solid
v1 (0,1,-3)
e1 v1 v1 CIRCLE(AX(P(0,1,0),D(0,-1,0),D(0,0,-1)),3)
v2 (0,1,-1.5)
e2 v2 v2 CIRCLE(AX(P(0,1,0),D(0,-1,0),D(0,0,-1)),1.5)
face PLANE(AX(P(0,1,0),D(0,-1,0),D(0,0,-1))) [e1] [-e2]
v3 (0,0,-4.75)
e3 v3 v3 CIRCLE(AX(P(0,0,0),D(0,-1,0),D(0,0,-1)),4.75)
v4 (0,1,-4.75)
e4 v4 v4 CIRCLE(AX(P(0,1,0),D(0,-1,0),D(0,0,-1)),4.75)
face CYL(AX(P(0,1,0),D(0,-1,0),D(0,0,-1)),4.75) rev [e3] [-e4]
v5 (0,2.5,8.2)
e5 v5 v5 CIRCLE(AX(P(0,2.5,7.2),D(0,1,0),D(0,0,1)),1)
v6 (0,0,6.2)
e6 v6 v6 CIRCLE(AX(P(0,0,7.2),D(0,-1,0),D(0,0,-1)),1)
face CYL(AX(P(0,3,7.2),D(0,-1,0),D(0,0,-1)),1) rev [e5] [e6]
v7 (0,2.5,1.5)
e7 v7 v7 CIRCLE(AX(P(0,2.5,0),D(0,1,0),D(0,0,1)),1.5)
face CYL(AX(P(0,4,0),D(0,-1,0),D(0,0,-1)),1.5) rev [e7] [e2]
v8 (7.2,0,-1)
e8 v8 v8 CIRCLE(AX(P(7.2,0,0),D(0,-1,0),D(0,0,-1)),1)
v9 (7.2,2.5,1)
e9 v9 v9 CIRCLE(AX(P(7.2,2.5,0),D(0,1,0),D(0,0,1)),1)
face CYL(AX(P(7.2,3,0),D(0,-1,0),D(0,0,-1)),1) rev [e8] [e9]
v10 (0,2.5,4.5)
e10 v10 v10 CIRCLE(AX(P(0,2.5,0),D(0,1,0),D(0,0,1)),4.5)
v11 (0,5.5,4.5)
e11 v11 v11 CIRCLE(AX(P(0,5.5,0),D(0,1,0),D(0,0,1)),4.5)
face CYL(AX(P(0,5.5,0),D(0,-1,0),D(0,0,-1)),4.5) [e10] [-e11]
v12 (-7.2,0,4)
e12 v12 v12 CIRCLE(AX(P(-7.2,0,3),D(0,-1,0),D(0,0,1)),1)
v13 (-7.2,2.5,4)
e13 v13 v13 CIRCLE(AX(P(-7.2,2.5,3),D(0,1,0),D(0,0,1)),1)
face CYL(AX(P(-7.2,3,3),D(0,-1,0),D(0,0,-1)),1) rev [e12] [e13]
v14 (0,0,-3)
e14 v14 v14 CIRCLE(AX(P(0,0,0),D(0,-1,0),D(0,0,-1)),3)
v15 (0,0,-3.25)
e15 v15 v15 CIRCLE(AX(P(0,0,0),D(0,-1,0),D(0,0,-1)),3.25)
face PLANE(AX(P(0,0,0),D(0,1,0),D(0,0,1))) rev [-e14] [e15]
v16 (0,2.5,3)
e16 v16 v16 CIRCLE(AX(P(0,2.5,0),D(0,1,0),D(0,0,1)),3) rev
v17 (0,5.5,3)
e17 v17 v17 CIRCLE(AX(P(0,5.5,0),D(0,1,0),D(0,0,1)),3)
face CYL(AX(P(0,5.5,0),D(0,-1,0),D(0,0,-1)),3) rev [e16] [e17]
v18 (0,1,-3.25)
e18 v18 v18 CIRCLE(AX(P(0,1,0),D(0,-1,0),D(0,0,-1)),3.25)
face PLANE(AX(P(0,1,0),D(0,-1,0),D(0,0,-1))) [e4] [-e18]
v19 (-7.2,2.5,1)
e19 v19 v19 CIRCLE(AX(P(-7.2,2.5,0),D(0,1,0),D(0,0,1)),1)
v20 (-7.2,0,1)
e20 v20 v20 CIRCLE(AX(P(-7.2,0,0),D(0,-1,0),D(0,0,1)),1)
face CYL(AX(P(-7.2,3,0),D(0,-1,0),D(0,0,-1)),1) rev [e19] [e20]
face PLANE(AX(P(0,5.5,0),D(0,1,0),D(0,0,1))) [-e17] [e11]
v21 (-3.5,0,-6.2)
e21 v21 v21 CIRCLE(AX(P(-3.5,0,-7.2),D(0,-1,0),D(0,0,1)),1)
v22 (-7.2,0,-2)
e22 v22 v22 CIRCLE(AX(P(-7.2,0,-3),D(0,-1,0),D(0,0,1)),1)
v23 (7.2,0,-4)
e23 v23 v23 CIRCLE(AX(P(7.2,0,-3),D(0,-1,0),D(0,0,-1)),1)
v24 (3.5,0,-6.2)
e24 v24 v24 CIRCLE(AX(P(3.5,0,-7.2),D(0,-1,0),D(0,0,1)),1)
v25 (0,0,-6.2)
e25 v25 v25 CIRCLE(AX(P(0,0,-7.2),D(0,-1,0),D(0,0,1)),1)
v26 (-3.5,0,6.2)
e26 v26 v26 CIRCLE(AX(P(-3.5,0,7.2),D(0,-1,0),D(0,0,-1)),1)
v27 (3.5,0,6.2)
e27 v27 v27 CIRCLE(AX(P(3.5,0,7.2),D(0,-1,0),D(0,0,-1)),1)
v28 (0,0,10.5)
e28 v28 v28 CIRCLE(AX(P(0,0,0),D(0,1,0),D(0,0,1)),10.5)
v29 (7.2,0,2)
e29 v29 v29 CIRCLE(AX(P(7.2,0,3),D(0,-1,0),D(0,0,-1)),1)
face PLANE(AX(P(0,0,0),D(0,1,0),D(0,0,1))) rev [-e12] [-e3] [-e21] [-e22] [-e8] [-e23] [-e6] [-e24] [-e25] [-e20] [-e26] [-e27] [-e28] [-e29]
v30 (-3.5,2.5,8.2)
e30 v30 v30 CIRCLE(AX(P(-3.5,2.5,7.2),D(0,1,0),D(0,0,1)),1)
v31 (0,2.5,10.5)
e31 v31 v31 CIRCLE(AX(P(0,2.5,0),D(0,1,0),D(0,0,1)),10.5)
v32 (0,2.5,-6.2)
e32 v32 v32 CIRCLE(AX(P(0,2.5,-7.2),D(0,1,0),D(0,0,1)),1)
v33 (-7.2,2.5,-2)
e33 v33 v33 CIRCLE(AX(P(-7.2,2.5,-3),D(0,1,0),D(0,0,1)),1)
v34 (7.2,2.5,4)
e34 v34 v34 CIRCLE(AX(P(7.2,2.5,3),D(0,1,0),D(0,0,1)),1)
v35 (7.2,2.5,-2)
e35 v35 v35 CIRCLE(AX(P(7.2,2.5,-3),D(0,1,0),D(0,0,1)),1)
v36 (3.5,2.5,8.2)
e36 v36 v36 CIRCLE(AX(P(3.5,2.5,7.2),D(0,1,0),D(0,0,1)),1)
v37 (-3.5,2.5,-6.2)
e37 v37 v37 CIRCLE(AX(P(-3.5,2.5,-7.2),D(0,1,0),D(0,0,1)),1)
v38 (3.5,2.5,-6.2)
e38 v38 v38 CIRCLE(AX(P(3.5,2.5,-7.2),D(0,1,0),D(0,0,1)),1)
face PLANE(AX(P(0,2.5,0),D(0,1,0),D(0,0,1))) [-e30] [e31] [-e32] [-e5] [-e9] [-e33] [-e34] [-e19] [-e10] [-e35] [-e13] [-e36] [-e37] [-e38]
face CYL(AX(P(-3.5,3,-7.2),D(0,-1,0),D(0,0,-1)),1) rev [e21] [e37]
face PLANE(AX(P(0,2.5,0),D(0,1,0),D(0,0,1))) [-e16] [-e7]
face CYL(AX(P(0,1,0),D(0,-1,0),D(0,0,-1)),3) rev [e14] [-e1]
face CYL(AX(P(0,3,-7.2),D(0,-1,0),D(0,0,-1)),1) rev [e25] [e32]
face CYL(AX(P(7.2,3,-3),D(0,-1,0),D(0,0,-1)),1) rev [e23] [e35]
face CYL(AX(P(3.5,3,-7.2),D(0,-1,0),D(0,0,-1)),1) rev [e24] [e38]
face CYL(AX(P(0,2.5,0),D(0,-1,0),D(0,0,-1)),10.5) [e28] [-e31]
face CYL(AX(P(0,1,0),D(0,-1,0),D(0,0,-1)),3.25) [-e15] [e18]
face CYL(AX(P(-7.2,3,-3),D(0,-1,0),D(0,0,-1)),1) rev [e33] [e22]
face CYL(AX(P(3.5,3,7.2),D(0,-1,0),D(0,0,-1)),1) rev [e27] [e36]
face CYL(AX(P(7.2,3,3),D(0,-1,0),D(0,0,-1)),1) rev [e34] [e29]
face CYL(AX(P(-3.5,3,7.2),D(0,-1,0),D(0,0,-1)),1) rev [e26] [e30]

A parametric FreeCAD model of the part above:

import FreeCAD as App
import Part
import Sketcher

doc = App.newDocument("Part")
body = doc.addObject("PartDesign::Body", "Body")

sketch1 = body.newObject("Sketcher::SketchObject", "Sketch")
sketch1.AttachmentSupport = (doc.getObject("XZ_Plane"), [""])
sketch1.MapMode = "FlatFace"
sketch1.addGeometry(Part.Circle(App.Vector(0, 0, 0), App.Vector(0, 0, 1), 10), False)
sketch1.addConstraint(Sketcher.Constraint("Coincident", 0, 3, -1, 1))
sketch1.addConstraint(Sketcher.Constraint("Diameter", 0, 21.0))
pad1 = body.newObject("PartDesign::Pad", "Pad")
pad1.Profile = sketch1
pad1.Length = 2.5
pad1.Reversed = True

sketch2 = body.newObject("Sketcher::SketchObject", "Sketch001")
sketch2.AttachmentSupport = (doc.getObject("XZ_Plane"), [""])
sketch2.MapMode = "FlatFace"
sketch2.AttachmentOffset = App.Placement(App.Vector(0, 0, -2.5), App.Rotation())
sketch2.addGeometry(Part.Circle(App.Vector(0, 0, 0), App.Vector(0, 0, 1), 4.5), False)
sketch2.addGeometry(Part.Circle(App.Vector(0, 0, 0), App.Vector(0, 0, 1), 3), False)
sketch2.addConstraint(Sketcher.Constraint("Coincident", 0, 3, -1, 1))
sketch2.addConstraint(Sketcher.Constraint("Coincident", 1, 3, -1, 1))
sketch2.addConstraint(Sketcher.Constraint("Diameter", 0, 9.0))
sketch2.addConstraint(Sketcher.Constraint("Diameter", 1, 6.0))
pad2 = body.newObject("PartDesign::Pad", "Pad001")
pad2.Profile = sketch2
pad2.Length = 3
pad2.Reversed = True

sketch3 = body.newObject("Sketcher::SketchObject", "Sketch002")
sketch3.AttachmentSupport = (doc.getObject("XZ_Plane"), [""])
sketch3.MapMode = "FlatFace"
sketch3.addGeometry(Part.Circle(App.Vector(0, 0, 0), App.Vector(0, 0, 1), 4.8), False)
sketch3.addGeometry(Part.Circle(App.Vector(0, 0, 0), App.Vector(0, 0, 1), 3.2), False)
sketch3.addConstraint(Sketcher.Constraint("Coincident", 0, 3, -1, 1))
sketch3.addConstraint(Sketcher.Constraint("Coincident", 1, 3, -1, 1))
sketch3.addConstraint(Sketcher.Constraint("Diameter", 0, 9.5))
sketch3.addConstraint(Sketcher.Constraint("Diameter", 1, 6.5))
pocket1 = body.newObject("PartDesign::Pocket", "Pocket")
pocket1.Profile = sketch3
pocket1.Length = 1

sketch4 = body.newObject("Sketcher::SketchObject", "Sketch003")
sketch4.AttachmentSupport = (doc.getObject("XZ_Plane"), [""])
sketch4.MapMode = "FlatFace"
sketch4.addGeometry(Part.Circle(App.Vector(0, 0, 0), App.Vector(0, 0, 1), 3), False)
sketch4.addConstraint(Sketcher.Constraint("Coincident", 0, 3, -1, 1))
sketch4.addConstraint(Sketcher.Constraint("Diameter", 0, 6.0))
pocket2 = body.newObject("PartDesign::Pocket", "Pocket001")
pocket2.Profile = sketch4
pocket2.Length = 1

sketch5 = body.newObject("Sketcher::SketchObject", "Sketch004")
sketch5.AttachmentSupport = (doc.getObject("XZ_Plane"), [""])
sketch5.MapMode = "FlatFace"
sketch5.AttachmentOffset = App.Placement(App.Vector(0, 0, -1), App.Rotation())
sketch5.addGeometry(Part.Circle(App.Vector(0, 0, 0), App.Vector(0, 0, 1), 1.5), False)
sketch5.addConstraint(Sketcher.Constraint("Coincident", 0, 3, -1, 1))
sketch5.addConstraint(Sketcher.Constraint("Diameter", 0, 3.0))
pocket3 = body.newObject("PartDesign::Pocket", "Pocket002")
pocket3.Profile = sketch5
pocket3.Length = 3

sketch6 = body.newObject("Sketcher::SketchObject", "Sketch005")
sketch6.AttachmentSupport = (doc.getObject("XZ_Plane"), [""])
sketch6.MapMode = "FlatFace"
sketch6.addGeometry(Part.Circle(App.Vector(0, 7.2, 0), App.Vector(0, 0, 1), 1), False)
sketch6.addGeometry(Part.Circle(App.Vector(0, -7.2, 0), App.Vector(0, 0, 1), 1), False)
sketch6.addGeometry(Part.Circle(App.Vector(7.2, 0, 0), App.Vector(0, 0, 1), 1), False)
sketch6.addGeometry(Part.Circle(App.Vector(-7.2, 0, 0), App.Vector(0, 0, 1), 1), False)
sketch6.addGeometry(Part.Circle(App.Vector(3.5, 7.2, 0), App.Vector(0, 0, 1), 1), False)
sketch6.addGeometry(Part.Circle(App.Vector(-3.5, 7.2, 0), App.Vector(0, 0, 1), 1), False)
sketch6.addGeometry(Part.Circle(App.Vector(3.5, -7.2, 0), App.Vector(0, 0, 1), 1), False)
sketch6.addGeometry(Part.Circle(App.Vector(-3.5, -7.2, 0), App.Vector(0, 0, 1), 1), False)
sketch6.addGeometry(Part.Circle(App.Vector(7.2, 3, 0), App.Vector(0, 0, 1), 1), False)
sketch6.addGeometry(Part.Circle(App.Vector(7.2, -3, 0), App.Vector(0, 0, 1), 1), False)
sketch6.addGeometry(Part.Circle(App.Vector(-7.2, -3, 0), App.Vector(0, 0, 1), 1), False)
sketch6.addGeometry(Part.Circle(App.Vector(-7.2, 3, 0), App.Vector(0, 0, 1), 1), False)
sketch6.addConstraint(Sketcher.Constraint("Equal", 0, 1))
sketch6.addConstraint(Sketcher.Constraint("Equal", 1, 2))
sketch6.addConstraint(Sketcher.Constraint("Equal", 2, 3))
sketch6.addConstraint(Sketcher.Constraint("Equal", 3, 4))
sketch6.addConstraint(Sketcher.Constraint("Equal", 4, 5))
sketch6.addConstraint(Sketcher.Constraint("Equal", 5, 6))
sketch6.addConstraint(Sketcher.Constraint("Equal", 6, 7))
sketch6.addConstraint(Sketcher.Constraint("Equal", 7, 8))
sketch6.addConstraint(Sketcher.Constraint("Equal", 8, 9))
sketch6.addConstraint(Sketcher.Constraint("Equal", 9, 10))
sketch6.addConstraint(Sketcher.Constraint("Equal", 10, 11))
sketch6.addConstraint(Sketcher.Constraint("Symmetric", 0, 3, 1, 3, -1, 1))
sketch6.addConstraint(Sketcher.Constraint("Symmetric", 2, 3, 3, 3, -1, 1))
sketch6.addConstraint(Sketcher.Constraint("Symmetric", 5, 3, 6, 3, -1, 1))
sketch6.addConstraint(Sketcher.Constraint("Symmetric", 4, 3, 7, 3, -1, 1))
sketch6.addConstraint(Sketcher.Constraint("Symmetric", 8, 3, 10, 3, -1, 1))
sketch6.addConstraint(Sketcher.Constraint("Symmetric", 9, 3, 11, 3, -1, 1))
sketch6.addConstraint(Sketcher.Constraint("Symmetric", 4, 3, 5, 3, -2))
sketch6.addConstraint(Sketcher.Constraint("Symmetric", 9, 3, 10, 3, -2))
sketch6.addConstraint(Sketcher.Constraint("PointOnObject", 0, 3, -2))
sketch6.addConstraint(Sketcher.Constraint("PointOnObject", 2, 3, -1))
sketch6.addConstraint(Sketcher.Constraint("Horizontal", 0, 3, 4, 3))
sketch6.addConstraint(Sketcher.Constraint("Vertical", 2, 3, 8, 3))
sketch6.addConstraint(Sketcher.Constraint("Diameter", 0, 2.0))
sketch6.addConstraint(Sketcher.Constraint("DistanceY", -1, 1, 8, 3, 3.0))
sketch6.addConstraint(Sketcher.Constraint("DistanceX", 5, 3, 4, 3, 7.0))
sketch6.addConstraint(Sketcher.Constraint("DistanceY", -1, 1, 0, 3, 7.2))
sketch6.addConstraint(Sketcher.Constraint("DistanceX", -1, 1, 2, 3, 7.2))
pocket4 = body.newObject("PartDesign::Pocket", "Pocket003")
pocket4.Profile = sketch6
pocket4.Length = 3

doc.recompute()
